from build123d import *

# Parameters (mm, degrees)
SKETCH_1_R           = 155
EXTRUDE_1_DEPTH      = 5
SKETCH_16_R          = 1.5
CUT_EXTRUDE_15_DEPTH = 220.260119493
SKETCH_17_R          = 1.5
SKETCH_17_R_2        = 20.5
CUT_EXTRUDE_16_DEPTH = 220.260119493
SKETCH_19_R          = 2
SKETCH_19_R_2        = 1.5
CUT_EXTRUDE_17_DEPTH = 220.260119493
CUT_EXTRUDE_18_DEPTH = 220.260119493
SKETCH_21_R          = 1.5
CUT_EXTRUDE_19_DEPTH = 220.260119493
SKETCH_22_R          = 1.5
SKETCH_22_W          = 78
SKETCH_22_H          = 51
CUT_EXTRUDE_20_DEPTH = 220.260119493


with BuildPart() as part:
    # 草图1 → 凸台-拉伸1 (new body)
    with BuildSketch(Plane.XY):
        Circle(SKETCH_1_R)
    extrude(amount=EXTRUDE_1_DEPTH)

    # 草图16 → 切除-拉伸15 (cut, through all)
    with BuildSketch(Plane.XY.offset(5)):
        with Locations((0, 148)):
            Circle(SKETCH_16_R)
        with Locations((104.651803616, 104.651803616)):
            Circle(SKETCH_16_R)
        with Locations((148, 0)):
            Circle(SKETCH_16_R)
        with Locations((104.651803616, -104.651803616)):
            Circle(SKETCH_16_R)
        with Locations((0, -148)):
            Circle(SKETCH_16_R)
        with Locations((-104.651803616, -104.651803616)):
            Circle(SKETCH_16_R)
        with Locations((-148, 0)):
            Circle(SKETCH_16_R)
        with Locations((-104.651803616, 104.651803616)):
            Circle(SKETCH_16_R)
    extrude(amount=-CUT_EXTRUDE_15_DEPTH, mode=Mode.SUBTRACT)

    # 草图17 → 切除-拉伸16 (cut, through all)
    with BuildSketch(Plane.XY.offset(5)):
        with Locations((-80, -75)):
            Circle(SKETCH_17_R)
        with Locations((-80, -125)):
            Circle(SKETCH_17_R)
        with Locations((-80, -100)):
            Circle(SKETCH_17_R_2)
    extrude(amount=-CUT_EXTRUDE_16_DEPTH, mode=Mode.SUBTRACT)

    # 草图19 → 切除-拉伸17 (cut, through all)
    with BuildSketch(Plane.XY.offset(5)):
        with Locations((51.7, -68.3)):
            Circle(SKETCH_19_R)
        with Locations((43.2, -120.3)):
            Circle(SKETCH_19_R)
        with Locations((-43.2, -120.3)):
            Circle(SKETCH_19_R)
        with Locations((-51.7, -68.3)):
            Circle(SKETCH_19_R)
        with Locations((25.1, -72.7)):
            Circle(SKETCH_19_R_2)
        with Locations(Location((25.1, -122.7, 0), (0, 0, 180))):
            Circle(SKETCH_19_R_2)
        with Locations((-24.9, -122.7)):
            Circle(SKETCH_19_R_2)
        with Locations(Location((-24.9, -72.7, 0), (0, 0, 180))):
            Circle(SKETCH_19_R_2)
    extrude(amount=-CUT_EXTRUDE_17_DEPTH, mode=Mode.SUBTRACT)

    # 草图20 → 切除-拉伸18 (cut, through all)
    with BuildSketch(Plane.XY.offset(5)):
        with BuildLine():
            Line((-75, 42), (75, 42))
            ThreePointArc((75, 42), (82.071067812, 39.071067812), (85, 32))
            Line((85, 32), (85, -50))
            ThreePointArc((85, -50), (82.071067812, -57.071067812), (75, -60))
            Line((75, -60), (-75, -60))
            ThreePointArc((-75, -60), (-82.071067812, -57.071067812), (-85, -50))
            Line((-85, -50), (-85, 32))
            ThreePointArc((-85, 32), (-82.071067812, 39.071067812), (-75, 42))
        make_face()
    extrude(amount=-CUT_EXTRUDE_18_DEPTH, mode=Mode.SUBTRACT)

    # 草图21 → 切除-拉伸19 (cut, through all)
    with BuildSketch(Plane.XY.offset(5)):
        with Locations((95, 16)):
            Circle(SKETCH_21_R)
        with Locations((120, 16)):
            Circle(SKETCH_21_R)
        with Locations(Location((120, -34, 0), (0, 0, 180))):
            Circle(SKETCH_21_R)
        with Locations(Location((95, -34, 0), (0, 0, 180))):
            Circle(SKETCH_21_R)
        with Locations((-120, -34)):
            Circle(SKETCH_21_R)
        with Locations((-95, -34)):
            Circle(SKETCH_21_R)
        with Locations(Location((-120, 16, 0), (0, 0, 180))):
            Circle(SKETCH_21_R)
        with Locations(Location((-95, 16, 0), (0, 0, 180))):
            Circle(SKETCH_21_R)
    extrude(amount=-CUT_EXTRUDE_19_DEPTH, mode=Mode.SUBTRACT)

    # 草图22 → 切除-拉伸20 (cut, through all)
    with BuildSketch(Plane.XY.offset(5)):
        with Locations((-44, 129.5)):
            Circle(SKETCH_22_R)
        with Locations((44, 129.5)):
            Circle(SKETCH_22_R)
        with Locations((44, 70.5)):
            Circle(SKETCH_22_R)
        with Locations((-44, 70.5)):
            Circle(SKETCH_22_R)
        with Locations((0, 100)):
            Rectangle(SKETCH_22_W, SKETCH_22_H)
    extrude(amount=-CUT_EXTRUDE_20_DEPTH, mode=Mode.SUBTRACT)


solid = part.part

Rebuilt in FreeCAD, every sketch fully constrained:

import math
import FreeCAD as App
import Part
import Sketcher

V = App.Vector

doc = App.newDocument("Part")
body = doc.addObject("PartDesign::Body", "Body")

# Sketch on XY plane
sketch1 = body.newObject("Sketcher::SketchObject", "Sketch")
sketch1.AttachmentSupport = (doc.getObject("XY_Plane"), [""])
sketch1.MapMode = "FlatFace"
sketch1.addGeometry(Part.Circle(V(0, 0, 0), V(0, 0, 1), 155), False)
sketch1.addConstraint([
    Sketcher.Constraint("Coincident", 0, 3, -1, 1),
    Sketcher.Constraint("Diameter", 0, 310.0),
])
pad1 = body.newObject("PartDesign::Pad", "Pad")
pad1.Profile = sketch1
pad1.Length = 5

# Sketch on XY plane
sketch2 = body.newObject("Sketcher::SketchObject", "Sketch001")
sketch2.AttachmentSupport = (doc.getObject("XY_Plane"), [""])
sketch2.MapMode = "FlatFace"
sketch2.AttachmentOffset = App.Placement(V(0, 0, 5), App.Rotation())
sketch2.addGeometry([
    Part.Circle(V(0, 148, 0), V(0, 0, 1), 1.5),  # 0
    Part.Circle(V(104.651804, 104.651804, 0), V(0, 0, 1), 1.5),  # 1
    Part.Circle(V(148, 0, 0), V(0, 0, 1), 1.5),  # 2
    Part.Circle(V(104.651804, -104.651804, 0), V(0, 0, 1), 1.5),  # 3
    Part.Circle(V(0, -148, 0), V(0, 0, 1), 1.5),  # 4
    Part.Circle(V(-104.651804, -104.651804, 0), V(0, 0, 1), 1.5),  # 5
    Part.Circle(V(-148, 0, 0), V(0, 0, 1), 1.5),  # 6
    Part.Circle(V(-104.651804, 104.651804, 0), V(0, 0, 1), 1.5),  # 7
], False)
sketch2.addConstraint([
    Sketcher.Constraint("Equal", 0, 1),
    Sketcher.Constraint("Equal", 1, 2),
    Sketcher.Constraint("Equal", 2, 3),
    Sketcher.Constraint("Equal", 3, 4),
    Sketcher.Constraint("Equal", 4, 5),
    Sketcher.Constraint("Equal", 5, 6),
    Sketcher.Constraint("Equal", 6, 7),
    Sketcher.Constraint("Symmetric", 0, 3, 4, 3, -1, 1),
    Sketcher.Constraint("Symmetric", 1, 3, 5, 3, -1, 1),
    Sketcher.Constraint("Symmetric", 2, 3, 6, 3, -1, 1),
    Sketcher.Constraint("Symmetric", 3, 3, 7, 3, -1, 1),
    Sketcher.Constraint("Symmetric", 3, 3, 5, 3, -2),
    Sketcher.Constraint("PointOnObject", 0, 3, -2),
    Sketcher.Constraint("PointOnObject", 2, 3, -1),
    Sketcher.Constraint("Diameter", 0, 3.0),
    Sketcher.Constraint("DistanceY", -1, 1, 0, 3, 148.0),
    Sketcher.Constraint("DistanceX", -1, 1, 2, 3, 148.0),
    Sketcher.Constraint("DistanceX", -1, 1, 1, 3, 104.651804),
    Sketcher.Constraint("DistanceY", -1, 1, 1, 3, 104.651804),
])
pocket1 = body.newObject("PartDesign::Pocket", "Pocket")
pocket1.Profile = sketch2
pocket1.Type = "ThroughAll"

# Sketch on XY plane
sketch3 = body.newObject("Sketcher::SketchObject", "Sketch002")
sketch3.AttachmentSupport = (doc.getObject("XY_Plane"), [""])
sketch3.MapMode = "FlatFace"
sketch3.AttachmentOffset = App.Placement(V(0, 0, 5), App.Rotation())
sketch3.addGeometry([
    Part.Circle(V(-80, -75, 0), V(0, 0, 1), 1.5),
    Part.Circle(V(-80, -125, 0), V(0, 0, 1), 1.5),
    Part.Circle(V(-80, -100, 0), V(0, 0, 1), 20.5),
], False)
sketch3.addConstraint([
    Sketcher.Constraint("Equal", 0, 1),
    Sketcher.Constraint("Vertical", 0, 3, 1, 3),
    Sketcher.Constraint("Vertical", 1, 3, 2, 3),
    Sketcher.Constraint("Diameter", 0, 3.0),
    Sketcher.Constraint("Diameter", 2, 41.0),
    Sketcher.Constraint("DistanceX", 0, 3, -1, 1, 80.0),
    Sketcher.Constraint("DistanceY", 0, 3, -1, 1, 75.0),
    Sketcher.Constraint("DistanceY", 1, 3, -1, 1, 125.0),
    Sketcher.Constraint("DistanceY", 2, 3, -1, 1, 100.0),
])
pocket2 = body.newObject("PartDesign::Pocket", "Pocket001")
pocket2.Profile = sketch3
pocket2.Type = "ThroughAll"

# Sketch on XY plane
sketch4 = body.newObject("Sketcher::SketchObject", "Sketch003")
sketch4.AttachmentSupport = (doc.getObject("XY_Plane"), [""])
sketch4.MapMode = "FlatFace"
sketch4.AttachmentOffset = App.Placement(V(0, 0, 5), App.Rotation())
sketch4.addGeometry([
    Part.Circle(V(51.7, -68.3, 0), V(0, 0, 1), 2),  # 0
    Part.Circle(V(43.2, -120.3, 0), V(0, 0, 1), 2),  # 1
    Part.Circle(V(-43.2, -120.3, 0), V(0, 0, 1), 2),  # 2
    Part.Circle(V(-51.7, -68.3, 0), V(0, 0, 1), 2),  # 3
    Part.Circle(V(25.1, -72.7, 0), V(0, 0, 1), 1.5),  # 4
    Part.Circle(V(25.1, -122.7, 0), V(0, 0, 1), 1.5),  # 5
    Part.Circle(V(-24.9, -122.7, 0), V(0, 0, 1), 1.5),  # 6
    Part.Circle(V(-24.9, -72.7, 0), V(0, 0, 1), 1.5),  # 7
], False)
sketch4.addConstraint([
    Sketcher.Constraint("Equal", 0, 1),
    Sketcher.Constraint("Equal", 1, 2),
    Sketcher.Constraint("Equal", 2, 3),
    Sketcher.Constraint("Equal", 4, 5),
    Sketcher.Constraint("Equal", 5, 6),
    Sketcher.Constraint("Equal", 6, 7),
    Sketcher.Constraint("Symmetric", 1, 3, 2, 3, -2),
    Sketcher.Constraint("Symmetric", 0, 3, 3, 3, -2),
    Sketcher.Constraint("Horizontal", 5, 3, 6, 3),
    Sketcher.Constraint("Horizontal", 4, 3, 7, 3),
    Sketcher.Constraint("Vertical", 4, 3, 5, 3),
    Sketcher.Constraint("Vertical", 6, 3, 7, 3),
    Sketcher.Constraint("Diameter", 0, 4.0),
    Sketcher.Constraint("Diameter", 4, 3.0),
    Sketcher.Constraint("DistanceY", 1, 3, 0, 3, 52.0),
    Sketcher.Constraint("DistanceY", 5, 3, 4, 3, 50.0),
    Sketcher.Constraint("DistanceX", 6, 3, 5, 3, 50.0),
    Sketcher.Constraint("DistanceX", -1, 1, 0, 3, 51.7),
    Sketcher.Constraint("DistanceY", 0, 3, -1, 1, 68.3),
    Sketcher.Constraint("DistanceX", -1, 1, 1, 3, 43.2),
    Sketcher.Constraint("DistanceX", -1, 1, 4, 3, 25.1),
    Sketcher.Constraint("DistanceY", 4, 3, -1, 1, 72.7),
])
pocket3 = body.newObject("PartDesign::Pocket", "Pocket002")
pocket3.Profile = sketch4
pocket3.Type = "ThroughAll"

# Sketch on XY plane
sketch5 = body.newObject("Sketcher::SketchObject", "Sketch004")
sketch5.AttachmentSupport = (doc.getObject("XY_Plane"), [""])
sketch5.MapMode = "FlatFace"
sketch5.AttachmentOffset = App.Placement(V(0, 0, 5), App.Rotation())
sketch5.addGeometry([
    Part.LineSegment(V(75, 42, 0), V(-75, 42, 0)),  # 0
    Part.ArcOfCircle(Part.Circle(V(-75, 32, 0), V(0, 0, 1), 10), math.radians(90), math.radians(180)),  # 1
    Part.LineSegment(V(-85, 32, 0), V(-85, -50, 0)),  # 2
    Part.ArcOfCircle(Part.Circle(V(-75, -50, 0), V(0, 0, 1), 10), math.radians(180), math.radians(270)),  # 3
    Part.LineSegment(V(-75, -60, 0), V(75, -60, 0)),  # 4
    Part.ArcOfCircle(Part.Circle(V(75, -50, 0), V(0, 0, 1), 10), math.radians(-90), math.radians(0)),  # 5
    Part.LineSegment(V(85, -50, 0), V(85, 32, 0)),  # 6
    Part.ArcOfCircle(Part.Circle(V(75, 32, 0), V(0, 0, 1), 10), math.radians(0), math.radians(90)),  # 7
], False)
sketch5.addConstraint([
    Sketcher.Constraint("Tangent", 0, 2, 1, 1),
    Sketcher.Constraint("Tangent", 1, 2, 2, 1),
    Sketcher.Constraint("Tangent", 2, 2, 3, 1),
    Sketcher.Constraint("Tangent", 3, 2, 4, 1),
    Sketcher.Constraint("Tangent", 4, 2, 5, 1),
    Sketcher.Constraint("Tangent", 5, 2, 6, 1),
    Sketcher.Constraint("Tangent", 6, 2, 7, 1),
    Sketcher.Constraint("Tangent", 7, 2, 0, 1),
    Sketcher.Constraint("Horizontal", 0),
    Sketcher.Constraint("Vertical", 2),
    Sketcher.Constraint("Horizontal", 4),
    Sketcher.Constraint("Vertical", 6),
    Sketcher.Constraint("Equal", 1, 3),
    Sketcher.Constraint("Equal", 3, 5),
    Sketcher.Constraint("Equal", 5, 7),
    Sketcher.Constraint("Radius", 1, 10.0),
    Sketcher.Constraint("DistanceX", 0, 2, 0, 1, 150.0),
    Sketcher.Constraint("DistanceY", 2, 2, 2, 1, 82.0),
    Sketcher.Constraint("DistanceX", 1, 3, -1, 1, 75.0),
    Sketcher.Constraint("DistanceY", -1, 1, 1, 3, 32.0),
])
pocket4 = body.newObject("PartDesign::Pocket", "Pocket003")
pocket4.Profile = sketch5
pocket4.Type = "ThroughAll"

# Sketch on XY plane
sketch6 = body.newObject("Sketcher::SketchObject", "Sketch005")
sketch6.AttachmentSupport = (doc.getObject("XY_Plane"), [""])
sketch6.MapMode = "FlatFace"
sketch6.AttachmentOffset = App.Placement(V(0, 0, 5), App.Rotation())
sketch6.addGeometry([
    Part.Circle(V(95, 16, 0), V(0, 0, 1), 1.5),  # 0
    Part.Circle(V(120, 16, 0), V(0, 0, 1), 1.5),  # 1
    Part.Circle(V(120, -34, 0), V(0, 0, 1), 1.5),  # 2
    Part.Circle(V(95, -34, 0), V(0, 0, 1), 1.5),  # 3
    Part.Circle(V(-120, -34, 0), V(0, 0, 1), 1.5),  # 4
    Part.Circle(V(-95, -34, 0), V(0, 0, 1), 1.5),  # 5
    Part.Circle(V(-120, 16, 0), V(0, 0, 1), 1.5),  # 6
    Part.Circle(V(-95, 16, 0), V(0, 0, 1), 1.5),  # 7
], False)
sketch6.addConstraint([
    Sketcher.Constraint("Equal", 0, 1),
    Sketcher.Constraint("Equal", 1, 2),
    Sketcher.Constraint("Equal", 2, 3),
    Sketcher.Constraint("Equal", 3, 4),
    Sketcher.Constraint("Equal", 4, 5),
    Sketcher.Constraint("Equal", 5, 6),
    Sketcher.Constraint("Equal", 6, 7),
    Sketcher.Constraint("Symmetric", 2, 3, 4, 3, -2),
    Sketcher.Constraint("Symmetric", 3, 3, 5, 3, -2),
    Sketcher.Constraint("Symmetric", 1, 3, 6, 3, -2),
    Sketcher.Constraint("Symmetric", 0, 3, 7, 3, -2),
    Sketcher.Constraint("Horizontal", 0, 3, 1, 3),
    Sketcher.Constraint("Horizontal", 2, 3, 3, 3),
    Sketcher.Constraint("Vertical", 1, 3, 2, 3),
    Sketcher.Constraint("Vertical", 0, 3, 3, 3),
    Sketcher.Constraint("Diameter", 0, 3.0),
    Sketcher.Constraint("DistanceX", -1, 1, 0, 3, 95.0),
    Sketcher.Constraint("DistanceY", -1, 1, 0, 3, 16.0),
    Sketcher.Constraint("DistanceX", -1, 1, 1, 3, 120.0),
    Sketcher.Constraint("DistanceY", 2, 3, -1, 1, 34.0),
])
pocket5 = body.newObject("PartDesign::Pocket", "Pocket004")
pocket5.Profile = sketch6
pocket5.Type = "ThroughAll"

# Sketch on XY plane
sketch7 = body.newObject("Sketcher::SketchObject", "Sketch006")
sketch7.AttachmentSupport = (doc.getObject("XY_Plane"), [""])
sketch7.MapMode = "FlatFace"
sketch7.AttachmentOffset = App.Placement(V(0, 0, 5), App.Rotation())
sketch7.addGeometry([
    Part.Circle(V(-44, 129.5, 0), V(0, 0, 1), 1.5),  # 0
    Part.Circle(V(44, 129.5, 0), V(0, 0, 1), 1.5),  # 1
    Part.Circle(V(44, 70.5, 0), V(0, 0, 1), 1.5),  # 2
    Part.Circle(V(-44, 70.5, 0), V(0, 0, 1), 1.5),  # 3
    Part.LineSegment(V(-39, 125.5, 0), V(-39, 74.5, 0)),  # 4
    Part.LineSegment(V(-39, 74.5, 0), V(39, 74.5, 0)),  # 5
    Part.LineSegment(V(39, 74.5, 0), V(39, 125.5, 0)),  # 6
    Part.LineSegment(V(39, 125.5, 0), V(-39, 125.5, 0)),  # 7
], False)
sketch7.addConstraint([
    Sketcher.Constraint("Coincident", 4, 2, 5, 1),
    Sketcher.Constraint("Coincident", 5, 2, 6, 1),
    Sketcher.Constraint("Coincident", 6, 2, 7, 1),
    Sketcher.Constraint("Coincident", 7, 2, 4, 1),
    Sketcher.Constraint("Vertical", 4),
    Sketcher.Constraint("Horizontal", 5),
    Sketcher.Constraint("Vertical", 6),
    Sketcher.Constraint("Horizontal", 7),
    Sketcher.Constraint("Equal", 0, 1),
    Sketcher.Constraint("Equal", 1, 2),
    Sketcher.Constraint("Equal", 2, 3),
    Sketcher.Constraint("Symmetric", 0, 3, 1, 3, -2),
    Sketcher.Constraint("Symmetric", 2, 3, 3, 3, -2),
    Sketcher.Constraint("Vertical", 1, 3, 2, 3),
    Sketcher.Constraint("Diameter", 0, 3.0),
    Sketcher.Constraint("DistanceX", 5, 1, 5, 2, 78.0),
    Sketcher.Constraint("DistanceY", 4, 2, 4, 1, 51.0),
    Sketcher.Constraint("DistanceX", 0, 3, -1, 1, 44.0),
    Sketcher.Constraint("DistanceX", 4, 2, -1, 1, 39.0),
    Sketcher.Constraint("DistanceY", 2, 3, 1, 3, 59.0),
    Sketcher.Constraint("DistanceY", 3, 3, 4, 2, 4.0),
    Sketcher.Constraint("DistanceY", -1, 1, 0, 3, 129.5),
])
pocket6 = body.newObject("PartDesign::Pocket", "Pocket005")
pocket6.Profile = sketch7
pocket6.Type = "ThroughAll"

doc.recompute()
